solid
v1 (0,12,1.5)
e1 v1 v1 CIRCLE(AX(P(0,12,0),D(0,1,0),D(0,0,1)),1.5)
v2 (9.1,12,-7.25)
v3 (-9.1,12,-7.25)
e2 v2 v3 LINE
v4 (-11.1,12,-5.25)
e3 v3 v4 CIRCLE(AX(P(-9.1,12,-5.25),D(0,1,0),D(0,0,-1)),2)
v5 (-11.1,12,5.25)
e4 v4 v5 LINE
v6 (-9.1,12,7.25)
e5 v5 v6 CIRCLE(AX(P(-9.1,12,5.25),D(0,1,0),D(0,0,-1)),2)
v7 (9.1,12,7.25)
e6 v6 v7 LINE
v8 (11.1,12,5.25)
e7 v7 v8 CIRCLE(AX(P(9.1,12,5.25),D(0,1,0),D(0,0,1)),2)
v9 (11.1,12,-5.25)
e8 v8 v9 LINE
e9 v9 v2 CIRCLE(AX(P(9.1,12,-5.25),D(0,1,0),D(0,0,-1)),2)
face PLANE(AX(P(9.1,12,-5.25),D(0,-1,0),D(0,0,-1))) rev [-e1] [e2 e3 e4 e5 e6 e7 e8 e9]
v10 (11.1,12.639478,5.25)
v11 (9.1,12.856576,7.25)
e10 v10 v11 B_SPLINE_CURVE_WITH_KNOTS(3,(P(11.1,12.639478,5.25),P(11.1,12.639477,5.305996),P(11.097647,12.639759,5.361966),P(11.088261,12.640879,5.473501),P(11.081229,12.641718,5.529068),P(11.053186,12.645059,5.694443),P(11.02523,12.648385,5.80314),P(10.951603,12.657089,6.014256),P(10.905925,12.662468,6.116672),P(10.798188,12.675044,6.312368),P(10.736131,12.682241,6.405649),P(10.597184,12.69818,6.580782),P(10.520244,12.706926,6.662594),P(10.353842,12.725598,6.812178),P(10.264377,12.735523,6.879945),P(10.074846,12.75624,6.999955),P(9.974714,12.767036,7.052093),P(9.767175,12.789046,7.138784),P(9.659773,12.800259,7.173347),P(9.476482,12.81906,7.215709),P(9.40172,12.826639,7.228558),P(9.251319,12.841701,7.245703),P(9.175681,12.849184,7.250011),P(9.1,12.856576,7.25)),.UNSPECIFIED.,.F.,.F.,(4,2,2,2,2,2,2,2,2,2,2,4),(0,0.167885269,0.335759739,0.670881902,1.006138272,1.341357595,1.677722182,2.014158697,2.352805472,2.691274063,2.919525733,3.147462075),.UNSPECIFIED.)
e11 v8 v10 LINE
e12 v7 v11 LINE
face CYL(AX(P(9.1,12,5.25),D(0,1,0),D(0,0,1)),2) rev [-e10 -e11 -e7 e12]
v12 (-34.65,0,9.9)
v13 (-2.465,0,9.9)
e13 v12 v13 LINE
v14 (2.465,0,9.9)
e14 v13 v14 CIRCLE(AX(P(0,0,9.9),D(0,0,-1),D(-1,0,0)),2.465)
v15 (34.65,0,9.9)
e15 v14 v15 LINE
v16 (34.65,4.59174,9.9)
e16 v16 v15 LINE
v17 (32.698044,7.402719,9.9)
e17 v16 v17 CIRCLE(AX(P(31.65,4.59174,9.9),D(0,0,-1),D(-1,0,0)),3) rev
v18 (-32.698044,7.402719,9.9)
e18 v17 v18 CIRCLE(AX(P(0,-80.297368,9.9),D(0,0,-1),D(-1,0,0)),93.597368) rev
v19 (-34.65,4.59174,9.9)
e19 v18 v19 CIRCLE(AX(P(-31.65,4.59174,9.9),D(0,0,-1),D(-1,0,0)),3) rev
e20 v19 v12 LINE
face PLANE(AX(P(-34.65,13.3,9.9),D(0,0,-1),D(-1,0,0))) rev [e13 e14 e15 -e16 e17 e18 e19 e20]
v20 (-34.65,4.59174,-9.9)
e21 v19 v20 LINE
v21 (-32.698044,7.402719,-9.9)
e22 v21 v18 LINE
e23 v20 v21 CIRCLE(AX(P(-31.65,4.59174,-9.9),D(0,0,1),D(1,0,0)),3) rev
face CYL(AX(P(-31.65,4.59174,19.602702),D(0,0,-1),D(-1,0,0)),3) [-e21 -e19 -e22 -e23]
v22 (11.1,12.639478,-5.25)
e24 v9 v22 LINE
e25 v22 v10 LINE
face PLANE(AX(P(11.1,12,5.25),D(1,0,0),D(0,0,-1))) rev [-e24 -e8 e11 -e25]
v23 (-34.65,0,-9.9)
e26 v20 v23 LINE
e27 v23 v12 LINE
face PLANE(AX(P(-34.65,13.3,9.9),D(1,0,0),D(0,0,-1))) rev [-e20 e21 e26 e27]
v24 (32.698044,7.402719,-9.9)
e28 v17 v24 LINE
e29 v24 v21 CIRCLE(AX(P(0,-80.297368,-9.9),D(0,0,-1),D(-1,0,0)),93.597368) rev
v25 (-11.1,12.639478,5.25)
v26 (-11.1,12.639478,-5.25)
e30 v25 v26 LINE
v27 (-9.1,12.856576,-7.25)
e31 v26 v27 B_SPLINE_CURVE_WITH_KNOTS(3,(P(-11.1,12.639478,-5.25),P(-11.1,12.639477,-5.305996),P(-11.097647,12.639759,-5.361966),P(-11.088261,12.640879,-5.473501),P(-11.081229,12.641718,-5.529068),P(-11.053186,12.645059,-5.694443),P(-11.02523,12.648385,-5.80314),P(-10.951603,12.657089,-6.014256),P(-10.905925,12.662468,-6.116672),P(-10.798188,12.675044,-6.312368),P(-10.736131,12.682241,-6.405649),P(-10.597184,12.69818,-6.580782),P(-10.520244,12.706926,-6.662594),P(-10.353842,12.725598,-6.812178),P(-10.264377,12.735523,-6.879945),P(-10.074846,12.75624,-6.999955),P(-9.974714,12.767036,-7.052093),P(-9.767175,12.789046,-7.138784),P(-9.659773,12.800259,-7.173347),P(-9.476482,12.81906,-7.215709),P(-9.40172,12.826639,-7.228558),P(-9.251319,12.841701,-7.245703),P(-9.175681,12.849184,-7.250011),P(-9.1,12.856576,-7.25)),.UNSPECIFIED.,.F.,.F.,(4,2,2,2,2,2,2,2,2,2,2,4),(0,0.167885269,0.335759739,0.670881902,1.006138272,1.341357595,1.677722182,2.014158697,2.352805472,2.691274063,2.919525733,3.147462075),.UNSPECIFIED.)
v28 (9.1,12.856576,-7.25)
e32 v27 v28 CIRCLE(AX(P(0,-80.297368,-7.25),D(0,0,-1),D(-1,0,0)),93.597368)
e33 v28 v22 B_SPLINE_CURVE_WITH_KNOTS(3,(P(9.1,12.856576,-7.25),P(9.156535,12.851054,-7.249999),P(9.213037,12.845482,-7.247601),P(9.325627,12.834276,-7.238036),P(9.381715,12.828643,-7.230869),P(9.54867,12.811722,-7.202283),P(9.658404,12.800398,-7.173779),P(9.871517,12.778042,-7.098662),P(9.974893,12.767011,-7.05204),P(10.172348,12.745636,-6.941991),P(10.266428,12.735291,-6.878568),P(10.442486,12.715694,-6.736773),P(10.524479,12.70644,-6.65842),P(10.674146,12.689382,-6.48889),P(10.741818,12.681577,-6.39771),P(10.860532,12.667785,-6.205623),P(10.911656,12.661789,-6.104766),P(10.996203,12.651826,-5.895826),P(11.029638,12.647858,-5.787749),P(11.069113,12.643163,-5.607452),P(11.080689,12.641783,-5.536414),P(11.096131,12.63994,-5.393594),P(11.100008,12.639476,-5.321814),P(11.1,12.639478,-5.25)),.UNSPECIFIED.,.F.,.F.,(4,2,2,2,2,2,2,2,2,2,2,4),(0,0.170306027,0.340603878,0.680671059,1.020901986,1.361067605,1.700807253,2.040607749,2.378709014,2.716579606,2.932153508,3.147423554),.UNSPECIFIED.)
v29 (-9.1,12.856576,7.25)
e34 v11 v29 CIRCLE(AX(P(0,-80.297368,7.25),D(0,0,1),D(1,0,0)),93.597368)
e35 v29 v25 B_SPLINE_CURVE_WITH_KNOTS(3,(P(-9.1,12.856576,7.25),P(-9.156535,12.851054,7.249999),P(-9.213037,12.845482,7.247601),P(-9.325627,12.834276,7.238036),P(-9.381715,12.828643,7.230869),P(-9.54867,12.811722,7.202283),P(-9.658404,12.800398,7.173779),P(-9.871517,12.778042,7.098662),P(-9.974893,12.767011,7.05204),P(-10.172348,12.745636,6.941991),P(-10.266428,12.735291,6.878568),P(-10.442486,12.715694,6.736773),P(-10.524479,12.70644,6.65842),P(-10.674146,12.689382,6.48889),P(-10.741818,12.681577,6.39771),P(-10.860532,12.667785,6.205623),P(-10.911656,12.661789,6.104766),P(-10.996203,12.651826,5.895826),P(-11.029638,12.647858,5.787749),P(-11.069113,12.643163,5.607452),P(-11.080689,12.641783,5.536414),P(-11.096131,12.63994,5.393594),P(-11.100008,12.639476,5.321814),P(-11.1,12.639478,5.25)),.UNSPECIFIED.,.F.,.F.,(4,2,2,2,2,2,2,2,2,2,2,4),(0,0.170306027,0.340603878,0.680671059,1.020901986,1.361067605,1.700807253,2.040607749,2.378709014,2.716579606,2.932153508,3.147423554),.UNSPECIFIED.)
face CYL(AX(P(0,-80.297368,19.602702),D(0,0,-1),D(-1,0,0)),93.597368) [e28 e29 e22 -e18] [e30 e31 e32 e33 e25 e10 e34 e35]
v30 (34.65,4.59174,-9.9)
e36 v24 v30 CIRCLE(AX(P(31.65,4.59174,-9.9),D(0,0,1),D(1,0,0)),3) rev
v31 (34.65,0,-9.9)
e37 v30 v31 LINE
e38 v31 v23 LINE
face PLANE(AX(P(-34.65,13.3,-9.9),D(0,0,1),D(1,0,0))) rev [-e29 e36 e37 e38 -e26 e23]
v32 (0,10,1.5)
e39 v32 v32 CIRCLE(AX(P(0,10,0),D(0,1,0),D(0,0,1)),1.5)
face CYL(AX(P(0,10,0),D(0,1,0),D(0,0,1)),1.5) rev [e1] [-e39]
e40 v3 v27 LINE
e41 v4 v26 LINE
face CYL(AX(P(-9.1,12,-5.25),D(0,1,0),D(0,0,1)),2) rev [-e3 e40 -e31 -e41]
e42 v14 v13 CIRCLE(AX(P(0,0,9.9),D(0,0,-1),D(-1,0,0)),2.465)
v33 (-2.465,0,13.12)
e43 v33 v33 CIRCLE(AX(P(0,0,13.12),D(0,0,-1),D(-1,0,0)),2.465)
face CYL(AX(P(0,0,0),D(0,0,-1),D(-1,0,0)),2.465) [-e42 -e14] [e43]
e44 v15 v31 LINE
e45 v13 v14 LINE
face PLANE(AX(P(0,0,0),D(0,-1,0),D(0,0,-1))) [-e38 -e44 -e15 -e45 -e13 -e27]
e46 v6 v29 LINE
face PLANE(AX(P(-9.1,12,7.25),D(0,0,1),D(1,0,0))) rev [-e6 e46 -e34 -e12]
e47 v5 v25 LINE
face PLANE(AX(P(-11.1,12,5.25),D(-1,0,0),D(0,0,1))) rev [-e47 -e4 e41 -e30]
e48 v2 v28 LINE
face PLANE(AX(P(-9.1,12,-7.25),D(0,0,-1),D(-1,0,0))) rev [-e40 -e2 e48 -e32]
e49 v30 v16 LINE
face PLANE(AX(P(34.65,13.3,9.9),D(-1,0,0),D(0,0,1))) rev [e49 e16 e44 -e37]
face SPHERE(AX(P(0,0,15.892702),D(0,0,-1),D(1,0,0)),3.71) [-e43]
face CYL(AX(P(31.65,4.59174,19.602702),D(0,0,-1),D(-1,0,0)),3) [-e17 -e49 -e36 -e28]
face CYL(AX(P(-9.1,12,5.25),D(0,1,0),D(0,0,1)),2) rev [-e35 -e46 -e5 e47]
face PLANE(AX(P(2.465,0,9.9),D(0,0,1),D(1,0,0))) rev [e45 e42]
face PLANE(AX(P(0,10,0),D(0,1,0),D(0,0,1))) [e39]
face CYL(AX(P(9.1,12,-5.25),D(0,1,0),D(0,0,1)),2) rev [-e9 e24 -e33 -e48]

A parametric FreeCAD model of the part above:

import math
import FreeCAD as App
import Part
import Sketcher


def edges_at(feature, points):
    """Names of the edges that pass closest to the given points."""
    edges = feature.Shape.Edges
    near = lambda p: min(range(len(edges)), key=lambda i: edges[i].distToShape(Part.Vertex(*p))[0])
    return sorted({f"Edge{near(p) + 1}" for p in points})

doc = App.newDocument("Part")
body = doc.addObject("PartDesign::Body", "Body")

# Sketch on XZ plane
sketch1 = body.newObject("Sketcher::SketchObject", "Sketch")
sketch1.AttachmentSupport = (doc.getObject("XZ_Plane"), [""])
sketch1.MapMode = "FlatFace"
sketch1.addGeometry(Part.LineSegment(App.Vector(-35, -10, 0), App.Vector(-35, 10, 0)), False)
sketch1.addGeometry(Part.LineSegment(App.Vector(-35, 10, 0), App.Vector(35, 10, 0)), False)
sketch1.addGeometry(Part.LineSegment(App.Vector(35, 10, 0), App.Vector(35, -10, 0)), False)
sketch1.addGeometry(Part.LineSegment(App.Vector(35, -10, 0), App.Vector(-35, -10, 0)), False)
sketch1.addConstraint(Sketcher.Constraint("Coincident", 0, 2, 1, 1))
sketch1.addConstraint(Sketcher.Constraint("Coincident", 1, 2, 2, 1))
sketch1.addConstraint(Sketcher.Constraint("Coincident", 2, 2, 3, 1))
sketch1.addConstraint(Sketcher.Constraint("Coincident", 3, 2, 0, 1))
sketch1.addConstraint(Sketcher.Constraint("Vertical", 0))
sketch1.addConstraint(Sketcher.Constraint("Horizontal", 1))
sketch1.addConstraint(Sketcher.Constraint("Vertical", 2))
sketch1.addConstraint(Sketcher.Constraint("Horizontal", 3))
sketch1.addConstraint(Sketcher.Constraint("Symmetric", 0, 2, 2, 2, -1, 1))
sketch1.addConstraint(Sketcher.Constraint("DistanceX", 1, 1, 1, 2, 69.3))
sketch1.addConstraint(Sketcher.Constraint("DistanceY", 0, 1, 0, 2, 19.8))
pad1 = body.newObject("PartDesign::Pad", "Pad")
pad1.Profile = sketch1
pad1.Length = 13.3
pad1.Reversed = True

# Sketch on XZ plane
sketch2 = body.newObject("Sketcher::SketchObject", "Sketch001")
sketch2.AttachmentSupport = (doc.getObject("XZ_Plane"), [""])
sketch2.MapMode = "FlatFace"
sketch2.addGeometry(Part.LineSegment(App.Vector(2.5, 13.1, 0), App.Vector(2.5, 9.9, 0)), False)
sketch2.addGeometry(Part.LineSegment(App.Vector(2.5, 9.9, 0), App.Vector(0, 9.9, 0)), False)
sketch2.addGeometry(Part.LineSegment(App.Vector(0, 9.9, 0), App.Vector(0, 19.6, 0)), False)
sketch2.addGeometry(Part.ArcOfCircle(Part.Circle(App.Vector(0, 15.9, 0), App.Vector(0, 0, 1), 3.7), math.radians(-48), math.radians(90)), False)
sketch2.addConstraint(Sketcher.Constraint("Coincident", 0, 2, 1, 1))
sketch2.addConstraint(Sketcher.Constraint("Coincident", 1, 2, 2, 1))
sketch2.addConstraint(Sketcher.Constraint("Coincident", 2, 2, 3, 2))
sketch2.addConstraint(Sketcher.Constraint("Coincident", 3, 1, 0, 1))
sketch2.addConstraint(Sketcher.Constraint("Vertical", 0))
sketch2.addConstraint(Sketcher.Constraint("Horizontal", 1))
sketch2.addConstraint(Sketcher.Constraint("Vertical", 2))
sketch2.addConstraint(Sketcher.Constraint("PointOnObject", 3, 3, -2))
sketch2.addConstraint(Sketcher.Constraint("PointOnObject", 1, 2, -2))
sketch2.addConstraint(Sketcher.Constraint("Radius", 3, 3.71))
sketch2.addConstraint(Sketcher.Constraint("DistanceY", 0, 2, 0, 1, 3.22))
sketch2.addConstraint(Sketcher.Constraint("DistanceY", -1, 1, 0, 2, 9.9))
sketch2.addConstraint(Sketcher.Constraint("DistanceX", 1, 2, 1, 1, 2.465))
revolution = body.newObject("PartDesign::Revolution", "Revolution")
revolution.Profile = sketch2
revolution.ReferenceAxis = (sketch2, ["V_Axis"])
revolution.Angle = 360

# Sketch on XY plane
sketch3 = body.newObject("Sketcher::SketchObject", "Sketch002")
sketch3.AttachmentSupport = (doc.getObject("XY_Plane"), [""])
sketch3.MapMode = "FlatFace"
sketch3.AttachmentOffset = App.Placement(App.Vector(0, 0, -9.9), App.Rotation())
sketch3.addGeometry(Part.LineSegment(App.Vector(35, 13, 0), App.Vector(35, 7, 0)), False)
sketch3.addGeometry(Part.ArcOfCircle(Part.Circle(App.Vector(0, -80, 0), App.Vector(0, 0, 1), 94), math.radians(68), math.radians(90)), False)
sketch3.addGeometry(Part.LineSegment(App.Vector(0, 13, 0), App.Vector(35, 13, 0)), False)
sketch3.addGeometry(Part.ArcOfCircle(Part.Circle(App.Vector(0, -80, 0), App.Vector(0, 0, 1), 94), math.radians(90), math.radians(112)), False)
sketch3.addGeometry(Part.LineSegment(App.Vector(-35, 7, 0), App.Vector(-35, 13, 0)), False)
sketch3.addGeometry(Part.LineSegment(App.Vector(-35, 13, 0), App.Vector(0, 13, 0)), False)
sketch3.addConstraint(Sketcher.Constraint("Coincident", 0, 2, 1, 1))
sketch3.addConstraint(Sketcher.Constraint("Tangent", 1, 2, 2, 1))
sketch3.addConstraint(Sketcher.Constraint("Coincident", 2, 2, 0, 1))
sketch3.addConstraint(Sketcher.Constraint("Coincident", 3, 2, 4, 1))
sketch3.addConstraint(Sketcher.Constraint("Coincident", 4, 2, 5, 1))
sketch3.addConstraint(Sketcher.Constraint("Tangent", 5, 2, 3, 1))
sketch3.addConstraint(Sketcher.Constraint("Vertical", 0))
sketch3.addConstraint(Sketcher.Constraint("Horizontal", 2))
sketch3.addConstraint(Sketcher.Constraint("Vertical", 4))
sketch3.addConstraint(Sketcher.Constraint("Horizontal", 5))
sketch3.addConstraint(Sketcher.Constraint("Coincident", 3, 3, 1, 3))
sketch3.addConstraint(Sketcher.Constraint("Equal", 1, 3))
sketch3.addConstraint(Sketcher.Constraint("Symmetric", 0, 2, 3, 2, -2))
sketch3.addConstraint(Sketcher.Constraint("DistanceX", 2, 1, 2, 2, 34.65))
sketch3.addConstraint(Sketcher.Constraint("DistanceY", 0, 2, 0, 1, 6.65))
sketch3.addConstraint(Sketcher.Constraint("DistanceY", -1, 1, 1, 2, 13.3))
pocket1 = body.newObject("PartDesign::Pocket", "Pocket")
pocket1.Profile = sketch3
pocket1.Type = "ThroughAll"
pocket1.Reversed = True

# Sketch on XZ plane
sketch4 = body.newObject("Sketcher::SketchObject", "Sketch003")
sketch4.AttachmentSupport = (doc.getObject("XZ_Plane"), [""])
sketch4.MapMode = "FlatFace"
sketch4.AttachmentOffset = App.Placement(App.Vector(0, 0, -15), App.Rotation())
sketch4.addGeometry(Part.LineSegment(App.Vector(-9.1, 7.2, 0), App.Vector(9.1, 7.2, 0)), False)
sketch4.addGeometry(Part.ArcOfCircle(Part.Circle(App.Vector(9.1, 5.2, 0), App.Vector(0, 0, 1), 2), math.radians(0), math.radians(90)), False)
sketch4.addGeometry(Part.LineSegment(App.Vector(11.1, 5.2, 0), App.Vector(11.1, -5.2, 0)), False)
sketch4.addGeometry(Part.ArcOfCircle(Part.Circle(App.Vector(9.1, -5.2, 0), App.Vector(0, 0, 1), 2), math.radians(-90), math.radians(0)), False)
sketch4.addGeometry(Part.LineSegment(App.Vector(9.1, -7.2, 0), App.Vector(-9.1, -7.2, 0)), False)
sketch4.addGeometry(Part.ArcOfCircle(Part.Circle(App.Vector(-9.1, -5.2, 0), App.Vector(0, 0, 1), 2), math.radians(-180), math.radians(-90)), False)
sketch4.addGeometry(Part.LineSegment(App.Vector(-11.1, -5.2, 0), App.Vector(-11.1, 5.2, 0)), False)
sketch4.addGeometry(Part.ArcOfCircle(Part.Circle(App.Vector(-9.1, 5.2, 0), App.Vector(0, 0, 1), 2), math.radians(90), math.radians(180)), False)
sketch4.addConstraint(Sketcher.Constraint("Tangent", 0, 2, 1, 2))
sketch4.addConstraint(Sketcher.Constraint("Tangent", 1, 1, 2, 1))
sketch4.addConstraint(Sketcher.Constraint("Tangent", 2, 2, 3, 2))
sketch4.addConstraint(Sketcher.Constraint("Tangent", 3, 1, 4, 1))
sketch4.addConstraint(Sketcher.Constraint("Tangent", 4, 2, 5, 2))
sketch4.addConstraint(Sketcher.Constraint("Tangent", 5, 1, 6, 1))
sketch4.addConstraint(Sketcher.Constraint("Tangent", 6, 2, 7, 2))
sketch4.addConstraint(Sketcher.Constraint("Tangent", 7, 1, 0, 1))
sketch4.addConstraint(Sketcher.Constraint("Horizontal", 0))
sketch4.addConstraint(Sketcher.Constraint("Vertical", 2))
sketch4.addConstraint(Sketcher.Constraint("Horizontal", 4))
sketch4.addConstraint(Sketcher.Constraint("Vertical", 6))
sketch4.addConstraint(Sketcher.Constraint("Equal", 1, 3))
sketch4.addConstraint(Sketcher.Constraint("Equal", 3, 5))
sketch4.addConstraint(Sketcher.Constraint("Equal", 5, 7))
sketch4.addConstraint(Sketcher.Constraint("Symmetric", 1, 3, 5, 3, -1, 1))
sketch4.addConstraint(Sketcher.Constraint("Radius", 1, 2.0))
sketch4.addConstraint(Sketcher.Constraint("DistanceX", 0, 1, 0, 2, 18.2))
sketch4.addConstraint(Sketcher.Constraint("DistanceY", 2, 2, 2, 1, 10.5))
pocket2 = body.newObject("PartDesign::Pocket", "Pocket001")
pocket2.Profile = sketch4
pocket2.Length = 3
pocket2.Reversed = True

# Sketch on XZ plane
sketch5 = body.newObject("Sketcher::SketchObject", "Sketch004")
sketch5.AttachmentSupport = (doc.getObject("XZ_Plane"), [""])
sketch5.MapMode = "FlatFace"
sketch5.AttachmentOffset = App.Placement(App.Vector(0, 0, -12), App.Rotation())
sketch5.addGeometry(Part.Circle(App.Vector(0, 0, 0), App.Vector(0, 0, 1), 1.5), False)
sketch5.addConstraint(Sketcher.Constraint("Coincident", 0, 3, -1, 1))
sketch5.addConstraint(Sketcher.Constraint("Diameter", 0, 3.0))
pocket3 = body.newObject("PartDesign::Pocket", "Pocket002")
pocket3.Profile = sketch5
pocket3.Length = 2
pocket3.Reversed = True
doc.recompute()

fillet = body.newObject("PartDesign::Fillet", "Fillet")
fillet.Base = (pocket3, edges_at(pocket3, [(34.65, 6.65, 0), (-34.65, 6.65, 0)]))
fillet.Radius = 3

doc.recompute()
